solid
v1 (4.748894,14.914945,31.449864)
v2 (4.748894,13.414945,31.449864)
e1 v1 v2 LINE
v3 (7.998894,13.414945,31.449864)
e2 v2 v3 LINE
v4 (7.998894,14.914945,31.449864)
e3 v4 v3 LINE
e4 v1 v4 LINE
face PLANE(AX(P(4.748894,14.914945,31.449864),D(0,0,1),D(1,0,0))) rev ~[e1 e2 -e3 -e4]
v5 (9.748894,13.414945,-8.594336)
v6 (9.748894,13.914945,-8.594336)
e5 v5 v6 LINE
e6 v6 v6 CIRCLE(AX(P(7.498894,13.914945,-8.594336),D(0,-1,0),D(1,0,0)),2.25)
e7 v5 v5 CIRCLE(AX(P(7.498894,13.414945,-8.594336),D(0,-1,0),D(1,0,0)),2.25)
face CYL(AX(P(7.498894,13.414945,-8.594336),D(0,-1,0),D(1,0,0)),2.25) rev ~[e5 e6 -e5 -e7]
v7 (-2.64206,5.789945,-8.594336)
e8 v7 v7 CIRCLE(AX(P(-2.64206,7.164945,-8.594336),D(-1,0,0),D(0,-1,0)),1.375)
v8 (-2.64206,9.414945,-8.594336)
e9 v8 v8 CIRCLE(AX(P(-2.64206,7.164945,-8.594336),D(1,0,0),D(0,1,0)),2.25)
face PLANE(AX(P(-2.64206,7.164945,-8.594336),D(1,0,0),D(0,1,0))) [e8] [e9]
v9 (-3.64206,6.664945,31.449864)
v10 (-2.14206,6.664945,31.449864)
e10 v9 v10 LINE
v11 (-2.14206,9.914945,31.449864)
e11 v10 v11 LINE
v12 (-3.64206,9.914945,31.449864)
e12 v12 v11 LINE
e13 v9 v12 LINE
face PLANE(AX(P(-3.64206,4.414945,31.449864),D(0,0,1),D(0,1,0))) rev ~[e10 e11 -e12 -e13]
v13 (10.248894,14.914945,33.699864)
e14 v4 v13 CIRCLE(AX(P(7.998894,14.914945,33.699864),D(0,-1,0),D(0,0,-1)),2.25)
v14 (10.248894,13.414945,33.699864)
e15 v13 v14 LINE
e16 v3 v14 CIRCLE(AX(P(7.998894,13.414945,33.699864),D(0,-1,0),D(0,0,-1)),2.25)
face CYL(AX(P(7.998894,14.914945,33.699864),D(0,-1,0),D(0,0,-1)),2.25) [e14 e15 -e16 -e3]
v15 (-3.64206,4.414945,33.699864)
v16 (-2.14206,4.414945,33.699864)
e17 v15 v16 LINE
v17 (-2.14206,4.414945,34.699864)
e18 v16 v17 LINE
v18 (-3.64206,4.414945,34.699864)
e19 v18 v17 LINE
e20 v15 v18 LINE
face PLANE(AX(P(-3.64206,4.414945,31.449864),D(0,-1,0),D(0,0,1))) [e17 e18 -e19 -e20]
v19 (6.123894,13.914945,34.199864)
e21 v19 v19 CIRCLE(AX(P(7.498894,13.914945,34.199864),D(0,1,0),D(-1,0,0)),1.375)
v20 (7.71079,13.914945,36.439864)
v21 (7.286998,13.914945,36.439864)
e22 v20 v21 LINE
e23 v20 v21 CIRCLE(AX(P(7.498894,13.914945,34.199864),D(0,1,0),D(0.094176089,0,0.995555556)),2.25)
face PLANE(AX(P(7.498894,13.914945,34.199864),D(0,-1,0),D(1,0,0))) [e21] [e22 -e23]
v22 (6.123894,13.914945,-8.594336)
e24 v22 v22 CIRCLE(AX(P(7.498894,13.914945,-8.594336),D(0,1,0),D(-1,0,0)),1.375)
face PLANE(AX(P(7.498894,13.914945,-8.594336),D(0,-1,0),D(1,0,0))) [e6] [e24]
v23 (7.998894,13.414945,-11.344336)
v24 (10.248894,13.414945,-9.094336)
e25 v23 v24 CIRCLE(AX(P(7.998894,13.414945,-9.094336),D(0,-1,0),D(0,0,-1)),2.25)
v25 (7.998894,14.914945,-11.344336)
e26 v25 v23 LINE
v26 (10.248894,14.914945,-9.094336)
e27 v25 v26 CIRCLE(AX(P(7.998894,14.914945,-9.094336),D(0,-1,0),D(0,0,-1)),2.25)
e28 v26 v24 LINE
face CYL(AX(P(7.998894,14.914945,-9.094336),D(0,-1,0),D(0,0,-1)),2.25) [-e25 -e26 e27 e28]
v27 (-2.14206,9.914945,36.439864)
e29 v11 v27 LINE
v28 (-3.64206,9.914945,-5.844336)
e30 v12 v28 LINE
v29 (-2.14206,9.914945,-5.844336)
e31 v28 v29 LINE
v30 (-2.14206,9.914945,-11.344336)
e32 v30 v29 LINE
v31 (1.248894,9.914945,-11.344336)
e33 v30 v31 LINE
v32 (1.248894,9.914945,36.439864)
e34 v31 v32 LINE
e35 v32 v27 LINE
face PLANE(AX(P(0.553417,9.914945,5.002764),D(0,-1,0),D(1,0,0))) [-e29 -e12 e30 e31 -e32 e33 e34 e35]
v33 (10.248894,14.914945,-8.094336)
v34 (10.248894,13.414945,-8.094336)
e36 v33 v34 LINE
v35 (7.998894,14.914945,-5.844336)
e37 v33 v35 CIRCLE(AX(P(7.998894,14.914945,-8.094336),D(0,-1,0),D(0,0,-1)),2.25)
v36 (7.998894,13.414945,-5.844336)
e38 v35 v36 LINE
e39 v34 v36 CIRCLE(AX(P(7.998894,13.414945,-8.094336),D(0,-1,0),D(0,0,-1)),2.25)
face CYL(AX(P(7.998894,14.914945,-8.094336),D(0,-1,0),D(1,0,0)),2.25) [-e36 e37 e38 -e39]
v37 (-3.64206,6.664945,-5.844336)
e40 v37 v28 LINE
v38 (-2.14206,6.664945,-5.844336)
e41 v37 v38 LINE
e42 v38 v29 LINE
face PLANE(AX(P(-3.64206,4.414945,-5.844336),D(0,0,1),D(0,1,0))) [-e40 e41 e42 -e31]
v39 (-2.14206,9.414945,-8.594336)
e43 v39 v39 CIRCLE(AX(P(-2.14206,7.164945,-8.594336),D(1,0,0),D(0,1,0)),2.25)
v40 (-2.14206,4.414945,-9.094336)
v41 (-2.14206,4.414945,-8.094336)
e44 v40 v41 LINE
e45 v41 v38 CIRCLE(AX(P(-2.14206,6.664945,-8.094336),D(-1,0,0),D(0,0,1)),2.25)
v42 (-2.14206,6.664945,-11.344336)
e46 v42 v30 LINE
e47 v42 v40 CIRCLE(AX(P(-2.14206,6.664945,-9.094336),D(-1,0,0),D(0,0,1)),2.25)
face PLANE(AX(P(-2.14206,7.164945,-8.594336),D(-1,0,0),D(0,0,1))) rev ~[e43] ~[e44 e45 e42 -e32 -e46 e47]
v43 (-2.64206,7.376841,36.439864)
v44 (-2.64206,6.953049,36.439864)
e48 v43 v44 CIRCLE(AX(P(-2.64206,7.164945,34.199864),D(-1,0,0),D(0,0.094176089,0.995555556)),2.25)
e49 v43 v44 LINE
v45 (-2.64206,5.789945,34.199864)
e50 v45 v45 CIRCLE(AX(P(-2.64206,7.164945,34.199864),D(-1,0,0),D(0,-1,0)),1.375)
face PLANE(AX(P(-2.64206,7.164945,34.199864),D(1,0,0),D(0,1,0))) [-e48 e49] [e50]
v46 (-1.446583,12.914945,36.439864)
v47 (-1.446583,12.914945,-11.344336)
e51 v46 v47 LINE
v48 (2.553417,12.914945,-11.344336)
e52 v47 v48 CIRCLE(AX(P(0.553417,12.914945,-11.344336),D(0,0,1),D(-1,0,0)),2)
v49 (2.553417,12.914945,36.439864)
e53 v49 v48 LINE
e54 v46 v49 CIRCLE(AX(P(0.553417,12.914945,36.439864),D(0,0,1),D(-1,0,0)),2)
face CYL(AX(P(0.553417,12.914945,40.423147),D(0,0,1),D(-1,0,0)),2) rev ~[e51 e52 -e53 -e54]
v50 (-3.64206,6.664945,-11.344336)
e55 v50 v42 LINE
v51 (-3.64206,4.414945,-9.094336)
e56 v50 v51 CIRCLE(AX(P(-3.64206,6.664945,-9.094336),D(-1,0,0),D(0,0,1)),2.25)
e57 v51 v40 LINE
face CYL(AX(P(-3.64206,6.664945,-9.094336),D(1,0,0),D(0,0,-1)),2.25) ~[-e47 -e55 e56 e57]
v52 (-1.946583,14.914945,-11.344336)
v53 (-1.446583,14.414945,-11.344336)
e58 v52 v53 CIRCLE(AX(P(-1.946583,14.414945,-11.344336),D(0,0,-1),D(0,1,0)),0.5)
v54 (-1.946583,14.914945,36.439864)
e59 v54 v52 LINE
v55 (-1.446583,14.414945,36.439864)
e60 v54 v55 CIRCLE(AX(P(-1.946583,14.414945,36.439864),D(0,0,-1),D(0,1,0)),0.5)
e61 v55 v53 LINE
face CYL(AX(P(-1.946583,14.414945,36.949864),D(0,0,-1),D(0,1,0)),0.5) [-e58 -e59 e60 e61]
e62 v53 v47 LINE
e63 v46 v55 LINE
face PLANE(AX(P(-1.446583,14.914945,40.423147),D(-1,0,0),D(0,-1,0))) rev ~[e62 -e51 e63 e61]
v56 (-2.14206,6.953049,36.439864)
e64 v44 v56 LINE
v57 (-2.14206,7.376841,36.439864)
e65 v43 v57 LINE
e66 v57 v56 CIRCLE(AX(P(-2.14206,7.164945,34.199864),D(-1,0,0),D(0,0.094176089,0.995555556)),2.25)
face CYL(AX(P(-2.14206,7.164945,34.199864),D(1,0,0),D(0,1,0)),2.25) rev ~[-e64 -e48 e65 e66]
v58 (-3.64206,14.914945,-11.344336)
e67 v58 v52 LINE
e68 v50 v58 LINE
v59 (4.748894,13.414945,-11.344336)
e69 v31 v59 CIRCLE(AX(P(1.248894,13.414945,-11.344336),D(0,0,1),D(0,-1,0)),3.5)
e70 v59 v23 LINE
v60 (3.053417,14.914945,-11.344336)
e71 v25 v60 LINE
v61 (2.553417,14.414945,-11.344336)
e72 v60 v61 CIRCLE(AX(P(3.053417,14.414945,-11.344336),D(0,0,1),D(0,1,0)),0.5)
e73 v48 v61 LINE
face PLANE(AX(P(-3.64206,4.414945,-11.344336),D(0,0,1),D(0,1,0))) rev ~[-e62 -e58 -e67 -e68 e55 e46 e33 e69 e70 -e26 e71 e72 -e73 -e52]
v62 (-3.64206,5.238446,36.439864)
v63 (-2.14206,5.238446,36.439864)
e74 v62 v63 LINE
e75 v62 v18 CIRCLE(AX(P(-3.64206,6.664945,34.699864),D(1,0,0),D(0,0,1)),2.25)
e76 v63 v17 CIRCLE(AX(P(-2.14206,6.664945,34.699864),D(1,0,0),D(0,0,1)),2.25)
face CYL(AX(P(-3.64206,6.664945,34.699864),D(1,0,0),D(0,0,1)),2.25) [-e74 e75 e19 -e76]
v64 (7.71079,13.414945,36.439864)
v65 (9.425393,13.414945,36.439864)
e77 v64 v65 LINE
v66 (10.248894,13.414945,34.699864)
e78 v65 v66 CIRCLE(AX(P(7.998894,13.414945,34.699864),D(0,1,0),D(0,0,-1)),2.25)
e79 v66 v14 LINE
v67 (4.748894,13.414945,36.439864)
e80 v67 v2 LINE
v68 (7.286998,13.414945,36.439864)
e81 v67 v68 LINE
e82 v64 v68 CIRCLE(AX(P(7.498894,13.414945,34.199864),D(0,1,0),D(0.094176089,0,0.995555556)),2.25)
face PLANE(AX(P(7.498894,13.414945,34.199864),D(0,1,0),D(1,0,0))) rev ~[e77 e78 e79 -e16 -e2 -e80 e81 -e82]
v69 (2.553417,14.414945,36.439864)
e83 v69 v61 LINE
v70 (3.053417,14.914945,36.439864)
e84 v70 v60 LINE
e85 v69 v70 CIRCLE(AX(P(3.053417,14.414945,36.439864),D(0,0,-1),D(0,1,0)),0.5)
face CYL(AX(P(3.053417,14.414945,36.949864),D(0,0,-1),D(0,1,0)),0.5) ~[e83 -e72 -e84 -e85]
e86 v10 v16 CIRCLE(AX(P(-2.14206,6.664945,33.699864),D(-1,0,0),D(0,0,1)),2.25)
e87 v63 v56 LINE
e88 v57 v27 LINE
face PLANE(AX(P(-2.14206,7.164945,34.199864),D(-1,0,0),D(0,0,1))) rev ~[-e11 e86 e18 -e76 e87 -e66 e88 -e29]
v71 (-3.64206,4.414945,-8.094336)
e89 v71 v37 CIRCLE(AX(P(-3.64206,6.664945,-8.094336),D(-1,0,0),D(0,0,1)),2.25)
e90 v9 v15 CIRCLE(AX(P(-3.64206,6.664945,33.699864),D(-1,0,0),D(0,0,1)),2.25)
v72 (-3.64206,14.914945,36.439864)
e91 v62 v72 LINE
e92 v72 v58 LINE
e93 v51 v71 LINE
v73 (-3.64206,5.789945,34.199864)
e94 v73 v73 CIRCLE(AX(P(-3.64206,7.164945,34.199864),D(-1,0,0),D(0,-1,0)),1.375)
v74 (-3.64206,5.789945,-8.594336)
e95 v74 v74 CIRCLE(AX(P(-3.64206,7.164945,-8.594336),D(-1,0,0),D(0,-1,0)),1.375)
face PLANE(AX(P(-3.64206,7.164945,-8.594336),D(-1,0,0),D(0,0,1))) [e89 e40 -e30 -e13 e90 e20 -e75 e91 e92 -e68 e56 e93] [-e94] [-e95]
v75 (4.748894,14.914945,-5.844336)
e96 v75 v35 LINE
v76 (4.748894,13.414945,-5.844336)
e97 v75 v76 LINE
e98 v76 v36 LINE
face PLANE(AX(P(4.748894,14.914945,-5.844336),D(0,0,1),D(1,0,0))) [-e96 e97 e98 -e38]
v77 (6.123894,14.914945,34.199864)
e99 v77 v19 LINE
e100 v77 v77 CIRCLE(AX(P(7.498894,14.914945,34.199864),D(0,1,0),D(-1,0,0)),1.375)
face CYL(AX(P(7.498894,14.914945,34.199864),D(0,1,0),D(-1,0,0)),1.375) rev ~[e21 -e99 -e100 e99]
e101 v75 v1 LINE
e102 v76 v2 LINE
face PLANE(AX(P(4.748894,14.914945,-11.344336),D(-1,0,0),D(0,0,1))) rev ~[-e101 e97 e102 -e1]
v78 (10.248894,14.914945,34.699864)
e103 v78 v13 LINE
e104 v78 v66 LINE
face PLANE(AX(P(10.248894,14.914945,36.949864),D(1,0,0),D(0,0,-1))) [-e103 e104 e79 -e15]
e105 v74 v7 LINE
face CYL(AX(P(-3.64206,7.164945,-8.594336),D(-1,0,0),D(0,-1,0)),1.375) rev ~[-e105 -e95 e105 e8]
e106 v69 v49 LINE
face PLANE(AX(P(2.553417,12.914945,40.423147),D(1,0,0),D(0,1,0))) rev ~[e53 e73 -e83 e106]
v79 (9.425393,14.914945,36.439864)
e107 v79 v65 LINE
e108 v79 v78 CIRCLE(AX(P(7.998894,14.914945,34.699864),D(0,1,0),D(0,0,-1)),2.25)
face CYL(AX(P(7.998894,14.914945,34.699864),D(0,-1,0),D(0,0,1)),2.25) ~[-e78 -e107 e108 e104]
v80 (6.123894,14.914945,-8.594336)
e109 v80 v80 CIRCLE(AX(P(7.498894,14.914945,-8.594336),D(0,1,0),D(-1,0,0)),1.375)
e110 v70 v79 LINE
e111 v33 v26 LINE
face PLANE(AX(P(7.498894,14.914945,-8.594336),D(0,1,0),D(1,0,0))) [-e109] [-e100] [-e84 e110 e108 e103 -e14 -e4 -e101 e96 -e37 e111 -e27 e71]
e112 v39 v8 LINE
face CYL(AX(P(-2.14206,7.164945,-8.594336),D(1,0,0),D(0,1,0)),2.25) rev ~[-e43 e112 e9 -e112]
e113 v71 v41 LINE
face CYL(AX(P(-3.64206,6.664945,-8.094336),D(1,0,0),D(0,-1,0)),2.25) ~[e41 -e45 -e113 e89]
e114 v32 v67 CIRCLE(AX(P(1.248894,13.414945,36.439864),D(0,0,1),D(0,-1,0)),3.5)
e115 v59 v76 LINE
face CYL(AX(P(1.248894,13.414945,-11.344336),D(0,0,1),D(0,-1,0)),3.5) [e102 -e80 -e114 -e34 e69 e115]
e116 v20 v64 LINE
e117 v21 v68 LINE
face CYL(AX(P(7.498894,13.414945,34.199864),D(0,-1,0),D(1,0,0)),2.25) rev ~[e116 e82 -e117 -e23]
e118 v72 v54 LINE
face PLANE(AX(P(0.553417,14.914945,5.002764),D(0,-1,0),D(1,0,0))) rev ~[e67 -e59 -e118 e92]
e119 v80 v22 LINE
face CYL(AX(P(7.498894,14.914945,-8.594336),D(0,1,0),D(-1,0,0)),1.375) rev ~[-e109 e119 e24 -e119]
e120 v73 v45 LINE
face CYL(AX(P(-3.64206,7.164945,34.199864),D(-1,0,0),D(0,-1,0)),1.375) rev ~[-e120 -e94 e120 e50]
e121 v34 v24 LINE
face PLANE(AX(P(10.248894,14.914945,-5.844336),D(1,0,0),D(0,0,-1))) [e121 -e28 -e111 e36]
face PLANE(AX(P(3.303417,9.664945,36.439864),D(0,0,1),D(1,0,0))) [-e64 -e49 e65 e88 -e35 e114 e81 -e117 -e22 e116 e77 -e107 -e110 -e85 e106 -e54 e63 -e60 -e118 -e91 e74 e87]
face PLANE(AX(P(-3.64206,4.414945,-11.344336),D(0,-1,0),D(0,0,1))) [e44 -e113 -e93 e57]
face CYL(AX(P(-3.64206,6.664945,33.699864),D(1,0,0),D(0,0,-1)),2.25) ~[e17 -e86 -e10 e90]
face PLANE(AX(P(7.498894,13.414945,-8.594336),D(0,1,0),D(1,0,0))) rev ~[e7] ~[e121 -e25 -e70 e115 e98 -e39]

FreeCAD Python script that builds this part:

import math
import FreeCAD as App
import Part
import Sketcher
Q = App.Units.Quantity


def edges_at(feature, points):
    """Names of the edges that pass closest to the given points."""
    edges = feature.Shape.Edges
    near = lambda p: min(range(len(edges)), key=lambda i: edges[i].distToShape(Part.Vertex(*p))[0])
    return sorted({f"Edge{near(p) + 1}" for p in points})


def add_polygon(sketch, points):
    """Adds a closed chain of lines whose ends are joined by coincident constraints."""
    first, n = sketch.GeometryCount, len(points)
    for a, b in zip(points, points[1:] + points[:1]):
        sketch.addGeometry(Part.LineSegment(App.Vector(*a, 0), App.Vector(*b, 0)), False)
    for i in range(n):
        sketch.addConstraint(Sketcher.Constraint("Coincident", first + i, 2, first + (i + 1) % n, 1))

doc = App.newDocument("Part")
body = doc.addObject("PartDesign::Body", "Body")

# Sketch on XZ plane
sketch1 = body.newObject("Sketcher::SketchObject", "Sketch")
sketch1.AttachmentSupport = (doc.getObject("XZ_Plane"), [""])
sketch1.MapMode = "FlatFace"
sketch1.AttachmentOffset = App.Placement(App.Vector(0, 0, -14.914945), App.Rotation())
add_polygon(sketch1, [(-3.64206, -11.344336), (4.748894, -11.344336), (4.748894, 36.949864), (-3.64206, 36.949864)])  # lines 0-3
sketch1.addConstraint(Sketcher.Constraint("Horizontal", 0))
sketch1.addConstraint(Sketcher.Constraint("Vertical", 1))
sketch1.addConstraint(Sketcher.Constraint("Horizontal", 2))
sketch1.addConstraint(Sketcher.Constraint("Vertical", 3))
sketch1.addConstraint(Sketcher.Constraint("DistanceY", 1, 1, 1, 2, Q("48.2942 mm")))
sketch1.addConstraint(Sketcher.Constraint("DistanceX", 0, 1, 0, 2, Q("8.390954 mm")))
sketch1.addConstraint(Sketcher.Constraint("DistanceX", 2, 2, -1, 1, Q("3.64206 mm")))
sketch1.addConstraint(Sketcher.Constraint("DistanceY", 0, 2, -1, 1, Q("11.344336 mm")))
pad1 = body.newObject("PartDesign::Pad", "Pad")
pad1.Profile = sketch1
pad1.Length = 5

# Sketch on XY plane
sketch2 = body.newObject("Sketcher::SketchObject", "Sketch001")
sketch2.AttachmentSupport = (doc.getObject("XY_Plane"), [""])
sketch2.MapMode = "FlatFace"
sketch2.AttachmentOffset = App.Placement(App.Vector(0, 0, -11.344336), App.Rotation())
sketch2.addGeometry(Part.LineSegment(App.Vector(2.553417, 14.914945, 0), App.Vector(2.553417, 12.914945, 0)), False)
sketch2.addGeometry(Part.ArcOfCircle(Part.Circle(App.Vector(0.553417, 12.914945, 0), App.Vector(0, 0, 1), 2), math.radians(180), math.radians(360)), False)
sketch2.addGeometry(Part.LineSegment(App.Vector(-1.446583, 12.914945, 0), App.Vector(-1.446583, 14.914945, 0)), False)
sketch2.addGeometry(Part.LineSegment(App.Vector(-1.446583, 14.914945, 0), App.Vector(2.553417, 14.914945, 0)), False)
sketch2.addConstraint(Sketcher.Constraint("Tangent", 0, 2, 1, 2))
sketch2.addConstraint(Sketcher.Constraint("Tangent", 1, 1, 2, 1))
sketch2.addConstraint(Sketcher.Constraint("Coincident", 2, 2, 3, 1))
sketch2.addConstraint(Sketcher.Constraint("Coincident", 3, 2, 0, 1))
sketch2.addConstraint(Sketcher.Constraint("Vertical", 0))
sketch2.addConstraint(Sketcher.Constraint("Vertical", 2))
sketch2.addConstraint(Sketcher.Constraint("Horizontal", 3))
sketch2.addConstraint(Sketcher.Constraint("Radius", 1, Q("2 mm")))
sketch2.addConstraint(Sketcher.Constraint("DistanceY", 0, 2, 0, 1, Q("2 mm")))
sketch2.addConstraint(Sketcher.Constraint("DistanceX", -1, 1, 1, 3, Q("0.553417 mm")))
sketch2.addConstraint(Sketcher.Constraint("DistanceY", -1, 1, 1, 3, Q("12.914945 mm")))
pocket1 = body.newObject("PartDesign::Pocket", "Pocket")
pocket1.Profile = sketch2
pocket1.Type = "ThroughAll"
pocket1.Midplane = True

# Sketch on XZ plane
sketch3 = body.newObject("Sketcher::SketchObject", "Sketch002")
sketch3.AttachmentSupport = (doc.getObject("XZ_Plane"), [""])
sketch3.MapMode = "FlatFace"
sketch3.AttachmentOffset = App.Placement(App.Vector(0, 0, -14.914945), App.Rotation())
add_polygon(sketch3, [(4.748894, -11.344336), (4.748894, -5.844336), (10.248894, -5.844336), (10.248894, -11.344336)])  # lines 0-3
sketch3.addGeometry(Part.Circle(App.Vector(7.498894, -8.594336, 0), App.Vector(0, 0, 1), 1.375), False)  # 4
add_polygon(sketch3, [(4.748894, 31.449864), (4.748894, 36.949864), (10.248894, 36.949864), (10.248894, 31.449864)])  # lines 5-8
sketch3.addGeometry(Part.Circle(App.Vector(7.498894, 34.199864, 0), App.Vector(0, 0, 1), 1.375), False)  # 9
sketch3.addConstraint(Sketcher.Constraint("Vertical", 0))
sketch3.addConstraint(Sketcher.Constraint("Horizontal", 1))
sketch3.addConstraint(Sketcher.Constraint("Vertical", 2))
sketch3.addConstraint(Sketcher.Constraint("Horizontal", 3))
sketch3.addConstraint(Sketcher.Constraint("Vertical", 5))
sketch3.addConstraint(Sketcher.Constraint("Horizontal", 6))
sketch3.addConstraint(Sketcher.Constraint("Vertical", 7))
sketch3.addConstraint(Sketcher.Constraint("Horizontal", 8))
sketch3.addConstraint(Sketcher.Constraint("Equal", 4, 9))
sketch3.addConstraint(Sketcher.Constraint("Vertical", 4, 3, 9, 3))
sketch3.addConstraint(Sketcher.Constraint("Vertical", 3, 2, 5, 2))
sketch3.addConstraint(Sketcher.Constraint("Vertical", 2, 2, 6, 2))
sketch3.addConstraint(Sketcher.Constraint("Equal", 8, 0))
sketch3.addConstraint(Sketcher.Constraint("Equal", 2, 5))
sketch3.addConstraint(Sketcher.Constraint("Diameter", 4, Q("2.75 mm")))
sketch3.addConstraint(Sketcher.Constraint("DistanceX", 1, 1, 1, 2, Q("5.5 mm")))
sketch3.addConstraint(Sketcher.Constraint("DistanceX", 0, 2, 4, 3, Q("2.75 mm")))
sketch3.addConstraint(Sketcher.Constraint("DistanceY", 4, 3, 0, 2, Q("2.75 mm")))
sketch3.addConstraint(Sketcher.Constraint("DistanceY", 9, 3, 5, 2, Q("2.75 mm")))
sketch3.addConstraint(Sketcher.Constraint("DistanceY", 4, 3, 9, 3, Q("42.7942 mm")))
sketch3.addConstraint(Sketcher.Constraint("DistanceX", -1, 1, 4, 3, Q("7.498894 mm")))
sketch3.addConstraint(Sketcher.Constraint("DistanceY", 4, 3, -1, 1, Q("8.594336 mm")))
pad2 = body.newObject("PartDesign::Pad", "Pad001")
pad2.Profile = sketch3
pad2.Length = 1.5

# Sketch on XZ plane
sketch4 = body.newObject("Sketcher::SketchObject", "Sketch003")
sketch4.AttachmentSupport = (doc.getObject("XZ_Plane"), [""])
sketch4.MapMode = "FlatFace"
sketch4.AttachmentOffset = App.Placement(App.Vector(0, 0, -13.414945), App.Rotation())
sketch4.addGeometry(Part.Circle(App.Vector(7.498894, 34.199864, 0), App.Vector(0, 0, 1), 2.25), False)
sketch4.addGeometry(Part.Circle(App.Vector(7.498894, -8.594336, 0), App.Vector(0, 0, 1), 2.25), False)
sketch4.addConstraint(Sketcher.Constraint("Equal", 0, 1))
sketch4.addConstraint(Sketcher.Constraint("Vertical", 0, 3, 1, 3))
sketch4.addConstraint(Sketcher.Constraint("Diameter", 0, Q("4.5 mm")))
sketch4.addConstraint(Sketcher.Constraint("DistanceY", 1, 3, 0, 3, Q("42.7942 mm")))
sketch4.addConstraint(Sketcher.Constraint("DistanceX", -1, 1, 0, 3, Q("7.498894 mm")))
sketch4.addConstraint(Sketcher.Constraint("DistanceY", -1, 1, 0, 3, Q("34.199864 mm")))
pocket2 = body.newObject("PartDesign::Pocket", "Pocket001")
pocket2.Profile = sketch4
pocket2.Length = 0.5

# Sketch on YZ plane
sketch5 = body.newObject("Sketcher::SketchObject", "Sketch004")
sketch5.AttachmentSupport = (doc.getObject("YZ_Plane"), [""])
sketch5.MapMode = "FlatFace"
sketch5.AttachmentOffset = App.Placement(App.Vector(0, 0, -3.64206), App.Rotation())
add_polygon(sketch5, [(9.914945, -11.344336), (4.414945, -11.344336), (4.414945, -5.844336), (9.914945, -5.844336)])  # lines 0-3
sketch5.addGeometry(Part.Circle(App.Vector(7.164945, -8.594336, 0), App.Vector(0, 0, 1), 1.375), False)  # 4
add_polygon(sketch5, [(9.914945, 31.449864), (4.414945, 31.449864), (4.414945, 36.949864), (9.914945, 36.949864)])  # lines 5-8
sketch5.addGeometry(Part.Circle(App.Vector(7.164945, 34.199864, 0), App.Vector(0, 0, 1), 1.375), False)  # 9
sketch5.addConstraint(Sketcher.Constraint("Horizontal", 0))
sketch5.addConstraint(Sketcher.Constraint("Vertical", 1))
sketch5.addConstraint(Sketcher.Constraint("Horizontal", 2))
sketch5.addConstraint(Sketcher.Constraint("Vertical", 3))
sketch5.addConstraint(Sketcher.Constraint("Horizontal", 5))
sketch5.addConstraint(Sketcher.Constraint("Vertical", 6))
sketch5.addConstraint(Sketcher.Constraint("Horizontal", 7))
sketch5.addConstraint(Sketcher.Constraint("Vertical", 8))
sketch5.addConstraint(Sketcher.Constraint("Equal", 4, 9))
sketch5.addConstraint(Sketcher.Constraint("Vertical", 4, 3, 9, 3))
sketch5.addConstraint(Sketcher.Constraint("Vertical", 1, 2, 5, 2))
sketch5.addConstraint(Sketcher.Constraint("Vertical", 3, 2, 7, 2))
sketch5.addConstraint(Sketcher.Constraint("Equal", 7, 1))
sketch5.addConstraint(Sketcher.Constraint("Equal", 3, 6))
sketch5.addConstraint(Sketcher.Constraint("Diameter", 4, Q("2.75 mm")))
sketch5.addConstraint(Sketcher.Constraint("DistanceX", 0, 2, 0, 1, Q("5.5 mm")))
sketch5.addConstraint(Sketcher.Constraint("DistanceX", 0, 2, 4, 3, Q("2.75 mm")))
sketch5.addConstraint(Sketcher.Constraint("DistanceY", 0, 2, 4, 3, Q("2.75 mm")))
sketch5.addConstraint(Sketcher.Constraint("DistanceY", 5, 2, 9, 3, Q("2.75 mm")))
sketch5.addConstraint(Sketcher.Constraint("DistanceY", 4, 3, 9, 3, Q("42.7942 mm")))
sketch5.addConstraint(Sketcher.Constraint("DistanceX", -1, 1, 4, 3, Q("7.164945 mm")))
sketch5.addConstraint(Sketcher.Constraint("DistanceY", 4, 3, -1, 1, Q("8.594336 mm")))
pad3 = body.newObject("PartDesign::Pad", "Pad002")
pad3.Profile = sketch5
pad3.Length = 1.5

# Sketch on YZ plane
sketch6 = body.newObject("Sketcher::SketchObject", "Sketch005")
sketch6.AttachmentSupport = (doc.getObject("YZ_Plane"), [""])
sketch6.MapMode = "FlatFace"
sketch6.AttachmentOffset = App.Placement(App.Vector(0, 0, -2.14206), App.Rotation())
sketch6.addGeometry(Part.Circle(App.Vector(7.164945, 34.199864, 0), App.Vector(0, 0, 1), 2.25), False)
sketch6.addGeometry(Part.Circle(App.Vector(7.164945, -8.594336, 0), App.Vector(0, 0, 1), 2.25), False)
sketch6.addConstraint(Sketcher.Constraint("Equal", 0, 1))
sketch6.addConstraint(Sketcher.Constraint("Vertical", 0, 3, 1, 3))
sketch6.addConstraint(Sketcher.Constraint("Diameter", 0, Q("4.5 mm")))
sketch6.addConstraint(Sketcher.Constraint("DistanceY", 1, 3, 0, 3, Q("42.7942 mm")))
sketch6.addConstraint(Sketcher.Constraint("DistanceX", -1, 1, 0, 3, Q("7.164945 mm")))
sketch6.addConstraint(Sketcher.Constraint("DistanceY", -1, 1, 0, 3, Q("34.199864 mm")))
pocket3 = body.newObject("PartDesign::Pocket", "Pocket002")
pocket3.Profile = sketch6
pocket3.Length = 0.5
doc.recompute()

fillet = body.newObject("PartDesign::Fillet", "Fillet")
fillet.Base = (pocket3, edges_at(pocket3, [
    (-2.892, 4.415, 36.95),
    (-2.892, 4.415, 31.45),
    (10.249, 14.165, -11.344),
    (10.249, 14.165, -5.844),
    (10.249, 14.165, 31.45),
    (10.249, 14.165, 36.95),
    (-2.892, 4.415, -5.844),
    (-2.892, 4.415, -11.344),
]))
fillet.Radius = 2.25
doc.recompute()

fillet2 = body.newObject("PartDesign::Fillet", "Fillet001")
fillet2.Base = (fillet, edges_at(fillet, [(4.749, 9.915, 12.803)]))
fillet2.Radius = 3.5
doc.recompute()

fillet3 = body.newObject("PartDesign::Fillet", "Fillet002")
fillet3.Base = (fillet2, edges_at(fillet2, [(2.553, 14.915, 12.803), (-1.447, 14.915, 12.803)]))
fillet3.Radius = 0.5

# Sketch on XY plane
sketch7 = body.newObject("Sketcher::SketchObject", "Sketch006")
sketch7.AttachmentSupport = (doc.getObject("XY_Plane"), [""])
sketch7.MapMode = "FlatFace"
sketch7.AttachmentOffset = App.Placement(App.Vector(0, 0, 36.949864), App.Rotation())
add_polygon(sketch7, [(-3.64206, 14.914945), (-3.64206, 4.414945), (10.248894, 4.414945), (10.248894, 14.914945)])  # lines 0-3
sketch7.addConstraint(Sketcher.Constraint("Vertical", 0))
sketch7.addConstraint(Sketcher.Constraint("Horizontal", 1))
sketch7.addConstraint(Sketcher.Constraint("Vertical", 2))
sketch7.addConstraint(Sketcher.Constraint("Horizontal", 3))
sketch7.addConstraint(Sketcher.Constraint("DistanceY", 0, 2, 0, 1, Q("10.5 mm")))
sketch7.addConstraint(Sketcher.Constraint("DistanceX", 1, 1, 1, 2, Q("13.890954 mm")))
sketch7.addConstraint(Sketcher.Constraint("DistanceX", 0, 2, -1, 1, Q("3.64206 mm")))
sketch7.addConstraint(Sketcher.Constraint("DistanceY", -1, 1, 0, 2, Q("4.414945 mm")))
pocket4 = body.newObject("PartDesign::Pocket", "Pocket003")
pocket4.Profile = sketch7
pocket4.Length = 0.51

doc.recompute()
